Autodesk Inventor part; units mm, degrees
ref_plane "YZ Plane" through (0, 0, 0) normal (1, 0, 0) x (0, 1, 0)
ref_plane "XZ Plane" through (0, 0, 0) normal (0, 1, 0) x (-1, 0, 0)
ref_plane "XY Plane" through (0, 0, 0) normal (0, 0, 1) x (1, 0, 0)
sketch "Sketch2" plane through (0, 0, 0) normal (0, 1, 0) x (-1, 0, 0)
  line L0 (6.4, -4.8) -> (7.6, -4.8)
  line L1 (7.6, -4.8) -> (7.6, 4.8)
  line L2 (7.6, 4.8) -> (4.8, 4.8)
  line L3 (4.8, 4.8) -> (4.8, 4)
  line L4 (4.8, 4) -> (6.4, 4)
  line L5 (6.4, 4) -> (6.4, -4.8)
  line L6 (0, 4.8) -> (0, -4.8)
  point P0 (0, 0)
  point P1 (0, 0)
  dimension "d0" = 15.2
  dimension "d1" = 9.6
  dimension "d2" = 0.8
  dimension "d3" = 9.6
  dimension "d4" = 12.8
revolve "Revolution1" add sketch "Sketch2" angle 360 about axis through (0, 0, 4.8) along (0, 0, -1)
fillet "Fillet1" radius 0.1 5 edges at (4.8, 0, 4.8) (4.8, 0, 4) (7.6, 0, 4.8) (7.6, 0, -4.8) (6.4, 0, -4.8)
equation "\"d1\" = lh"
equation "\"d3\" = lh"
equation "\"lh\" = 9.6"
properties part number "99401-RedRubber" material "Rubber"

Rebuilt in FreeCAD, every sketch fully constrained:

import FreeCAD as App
import Part
import Sketcher

V = App.Vector
Q = App.Units.Quantity


def edges_at(feature, points):
    """Names of the edges that pass closest to the given points."""
    edges = feature.Shape.Edges
    near = lambda p: min(range(len(edges)), key=lambda i: edges[i].distToShape(Part.Vertex(*p))[0])
    return sorted({f"Edge{near(p) + 1}" for p in points})


def add_polygon(sketch, points):
    """Adds a closed chain of lines whose ends are joined by coincident constraints."""
    first, n = sketch.GeometryCount, len(points)
    for a, b in zip(points, points[1:] + points[:1]):
        sketch.addGeometry(Part.LineSegment(App.Vector(*a, 0), App.Vector(*b, 0)), False)
    for i in range(n):
        sketch.addConstraint(Sketcher.Constraint("Coincident", first + i, 2, first + (i + 1) % n, 1))

doc = App.newDocument("Part")
params = doc.addObject("Spreadsheet::Sheet", "Params")
for row, (alias, value) in enumerate([
    ("sketch1_height", "9.6 mm"),
    ("sketch1_height2", "0.8 mm"),
    ("sketch1_width", "1.2 mm"),
    ("sketch1_width2", "2.8 mm"),
    ("revolution_angle", "360 deg"),
    ("fillet_radius", "0.1 mm"),
], start=1):
    params.set(f"A{row}", alias)
    params.set(f"B{row}", "=" + value)
    params.setAlias(f"B{row}", alias)

body = doc.addObject("PartDesign::Body", "Body")

# Sketch on XZ plane
sketch1 = body.newObject("Sketcher::SketchObject", "Sketch")
sketch1.AttachmentSupport = (doc.getObject("XZ_Plane"), [""])
sketch1.MapMode = "FlatFace"
add_polygon(sketch1, [(-6.4, 4), (-6.4, -4.8), (-7.6, -4.8), (-7.6, 4.8), (-4.8, 4.8), (-4.8, 4)])  # lines 0-5
sketch1.addConstraint([
    Sketcher.Constraint("Vertical", 0),
    Sketcher.Constraint("Horizontal", 1),
    Sketcher.Constraint("Vertical", 2),
    Sketcher.Constraint("Horizontal", 3),
    Sketcher.Constraint("Vertical", 4),
    Sketcher.Constraint("Horizontal", 5),
    Sketcher.Constraint("DistanceY", 2, 1, 2, 2, Q("9.6 mm")),
    Sketcher.Constraint("DistanceY", 4, 2, 4, 1, Q("0.8 mm")),
    Sketcher.Constraint("DistanceX", 1, 2, 1, 1, Q("1.2 mm")),
    Sketcher.Constraint("DistanceX", 3, 1, 3, 2, Q("2.8 mm")),
    Sketcher.Constraint("DistanceY", -1, 1, 4, 2, Q("4 mm")),
    Sketcher.Constraint("DistanceX", 0, 2, -1, 1, Q("6.4 mm")),
])
sketch1.setExpression("Constraints[12]", "Params.sketch1_height")
sketch1.setExpression("Constraints[13]", "Params.sketch1_height2")
sketch1.setExpression("Constraints[14]", "Params.sketch1_width")
sketch1.setExpression("Constraints[15]", "Params.sketch1_width2")
revolution = body.newObject("PartDesign::Revolution", "Revolution")
revolution.Profile = sketch1
revolution.ReferenceAxis = (sketch1, ["V_Axis"])
revolution.setExpression("Angle", "Params.revolution_angle")
doc.recompute()

fillet = body.newObject("PartDesign::Fillet", "Fillet")
fillet.Base = (revolution, edges_at(revolution, [
    (4.8, 0, 4.8),
    (4.8, 0, 4),
    (7.6, 0, 4.8),
    (7.6, 0, -4.8),
    (6.4, 0, -4.8),
]))
fillet.setExpression("Radius", "Params.fillet_radius")

doc.recompute()
